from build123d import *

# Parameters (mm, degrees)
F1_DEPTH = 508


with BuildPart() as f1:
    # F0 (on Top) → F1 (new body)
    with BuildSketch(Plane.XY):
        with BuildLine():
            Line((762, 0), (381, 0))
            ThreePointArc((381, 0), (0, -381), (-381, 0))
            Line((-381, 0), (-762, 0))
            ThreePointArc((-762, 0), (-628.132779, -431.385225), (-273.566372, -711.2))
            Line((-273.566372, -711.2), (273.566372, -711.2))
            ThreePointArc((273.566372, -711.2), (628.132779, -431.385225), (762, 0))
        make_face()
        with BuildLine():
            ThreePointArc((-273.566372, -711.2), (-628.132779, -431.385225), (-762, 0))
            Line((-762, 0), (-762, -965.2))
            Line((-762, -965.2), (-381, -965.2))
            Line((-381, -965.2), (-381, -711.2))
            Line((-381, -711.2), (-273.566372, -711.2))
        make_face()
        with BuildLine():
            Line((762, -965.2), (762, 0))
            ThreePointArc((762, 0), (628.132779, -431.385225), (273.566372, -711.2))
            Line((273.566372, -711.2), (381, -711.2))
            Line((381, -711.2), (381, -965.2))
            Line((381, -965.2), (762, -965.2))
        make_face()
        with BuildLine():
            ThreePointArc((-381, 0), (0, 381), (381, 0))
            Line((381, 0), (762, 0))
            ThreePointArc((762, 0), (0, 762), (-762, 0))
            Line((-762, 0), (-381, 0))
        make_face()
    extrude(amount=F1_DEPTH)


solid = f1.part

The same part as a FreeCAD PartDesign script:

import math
import FreeCAD as App
import Part
import Sketcher
Q = App.Units.Quantity

doc = App.newDocument("Part")
params = doc.addObject("Spreadsheet::Sheet", "Params")
for row, (alias, value) in enumerate([
    ("sketch1_diameter", "30 in"),
    ("sketch1_radius", "30 in"),
    ("sketch1_width", "15 in"),
    ("sketch1_height", "38 in"),
    ("sketch1_height2", "10 in"),
    ("pad1_length", "20 in"),
], start=1):
    params.set(f"A{row}", alias)
    params.set(f"B{row}", "=" + value)
    params.setAlias(f"B{row}", alias)

body = doc.addObject("PartDesign::Body", "Body")

# Sketch on XY plane
sketch1 = body.newObject("Sketcher::SketchObject", "Sketch")
sketch1.AttachmentSupport = (doc.getObject("XY_Plane"), [""])
sketch1.MapMode = "FlatFace"
sketch1.addGeometry(Part.LineSegment(App.Vector(-762, 0, 0), App.Vector(-762, -965, 0)), False)
sketch1.addGeometry(Part.LineSegment(App.Vector(-762, -965, 0), App.Vector(-381, -965, 0)), False)
sketch1.addGeometry(Part.LineSegment(App.Vector(-381, -965, 0), App.Vector(-381, -711, 0)), False)
sketch1.addGeometry(Part.LineSegment(App.Vector(-381, -711, 0), App.Vector(381, -711, 0)), False)
sketch1.addGeometry(Part.LineSegment(App.Vector(381, -711, 0), App.Vector(381, -965, 0)), False)
sketch1.addGeometry(Part.LineSegment(App.Vector(381, -965, 0), App.Vector(762, -965, 0)), False)
sketch1.addGeometry(Part.LineSegment(App.Vector(762, -965, 0), App.Vector(762, 0, 0)), False)
sketch1.addGeometry(Part.ArcOfCircle(Part.Circle(App.Vector(0, 0, 0), App.Vector(0, 0, 1), 762), math.radians(0), math.radians(180)), False)
sketch1.addGeometry(Part.Circle(App.Vector(0, 0, 0), App.Vector(0, 0, 1), 381), False)
sketch1.addConstraint(Sketcher.Constraint("Coincident", 0, 2, 1, 1))
sketch1.addConstraint(Sketcher.Constraint("Coincident", 1, 2, 2, 1))
sketch1.addConstraint(Sketcher.Constraint("Coincident", 2, 2, 3, 1))
sketch1.addConstraint(Sketcher.Constraint("Coincident", 3, 2, 4, 1))
sketch1.addConstraint(Sketcher.Constraint("Coincident", 4, 2, 5, 1))
sketch1.addConstraint(Sketcher.Constraint("Coincident", 5, 2, 6, 1))
sketch1.addConstraint(Sketcher.Constraint("Tangent", 6, 2, 7, 1))
sketch1.addConstraint(Sketcher.Constraint("Tangent", 7, 2, 0, 1))
sketch1.addConstraint(Sketcher.Constraint("Vertical", 0))
sketch1.addConstraint(Sketcher.Constraint("Horizontal", 1))
sketch1.addConstraint(Sketcher.Constraint("Vertical", 2))
sketch1.addConstraint(Sketcher.Constraint("Horizontal", 3))
sketch1.addConstraint(Sketcher.Constraint("Vertical", 4))
sketch1.addConstraint(Sketcher.Constraint("Horizontal", 5))
sketch1.addConstraint(Sketcher.Constraint("Vertical", 6))
sketch1.addConstraint(Sketcher.Constraint("Coincident", 7, 3, -1, 1))
sketch1.addConstraint(Sketcher.Constraint("Coincident", 8, 3, -1, 1))
sketch1.addConstraint(Sketcher.Constraint("Symmetric", 1, 2, 4, 2, -2))
sketch1.addConstraint(Sketcher.Constraint("Diameter", 8, Q("30 in")))
sketch1.addConstraint(Sketcher.Constraint("Radius", 7, Q("30 in")))
sketch1.addConstraint(Sketcher.Constraint("DistanceX", 1, 1, 1, 2, Q("15 in")))
sketch1.addConstraint(Sketcher.Constraint("DistanceY", 0, 2, 0, 1, Q("38 in")))
sketch1.addConstraint(Sketcher.Constraint("DistanceY", 2, 1, 2, 2, Q("10 in")))
sketch1.setExpression("Constraints[18]", "Params.sketch1_diameter")
sketch1.setExpression("Constraints[19]", "Params.sketch1_radius")
sketch1.setExpression("Constraints[20]", "Params.sketch1_width")
sketch1.setExpression("Constraints[21]", "Params.sketch1_height")
sketch1.setExpression("Constraints[22]", "Params.sketch1_height2")
pad1 = body.newObject("PartDesign::Pad", "Pad")
pad1.Profile = sketch1
pad1.setExpression("Length", "Params.pad1_length")

doc.recompute()
